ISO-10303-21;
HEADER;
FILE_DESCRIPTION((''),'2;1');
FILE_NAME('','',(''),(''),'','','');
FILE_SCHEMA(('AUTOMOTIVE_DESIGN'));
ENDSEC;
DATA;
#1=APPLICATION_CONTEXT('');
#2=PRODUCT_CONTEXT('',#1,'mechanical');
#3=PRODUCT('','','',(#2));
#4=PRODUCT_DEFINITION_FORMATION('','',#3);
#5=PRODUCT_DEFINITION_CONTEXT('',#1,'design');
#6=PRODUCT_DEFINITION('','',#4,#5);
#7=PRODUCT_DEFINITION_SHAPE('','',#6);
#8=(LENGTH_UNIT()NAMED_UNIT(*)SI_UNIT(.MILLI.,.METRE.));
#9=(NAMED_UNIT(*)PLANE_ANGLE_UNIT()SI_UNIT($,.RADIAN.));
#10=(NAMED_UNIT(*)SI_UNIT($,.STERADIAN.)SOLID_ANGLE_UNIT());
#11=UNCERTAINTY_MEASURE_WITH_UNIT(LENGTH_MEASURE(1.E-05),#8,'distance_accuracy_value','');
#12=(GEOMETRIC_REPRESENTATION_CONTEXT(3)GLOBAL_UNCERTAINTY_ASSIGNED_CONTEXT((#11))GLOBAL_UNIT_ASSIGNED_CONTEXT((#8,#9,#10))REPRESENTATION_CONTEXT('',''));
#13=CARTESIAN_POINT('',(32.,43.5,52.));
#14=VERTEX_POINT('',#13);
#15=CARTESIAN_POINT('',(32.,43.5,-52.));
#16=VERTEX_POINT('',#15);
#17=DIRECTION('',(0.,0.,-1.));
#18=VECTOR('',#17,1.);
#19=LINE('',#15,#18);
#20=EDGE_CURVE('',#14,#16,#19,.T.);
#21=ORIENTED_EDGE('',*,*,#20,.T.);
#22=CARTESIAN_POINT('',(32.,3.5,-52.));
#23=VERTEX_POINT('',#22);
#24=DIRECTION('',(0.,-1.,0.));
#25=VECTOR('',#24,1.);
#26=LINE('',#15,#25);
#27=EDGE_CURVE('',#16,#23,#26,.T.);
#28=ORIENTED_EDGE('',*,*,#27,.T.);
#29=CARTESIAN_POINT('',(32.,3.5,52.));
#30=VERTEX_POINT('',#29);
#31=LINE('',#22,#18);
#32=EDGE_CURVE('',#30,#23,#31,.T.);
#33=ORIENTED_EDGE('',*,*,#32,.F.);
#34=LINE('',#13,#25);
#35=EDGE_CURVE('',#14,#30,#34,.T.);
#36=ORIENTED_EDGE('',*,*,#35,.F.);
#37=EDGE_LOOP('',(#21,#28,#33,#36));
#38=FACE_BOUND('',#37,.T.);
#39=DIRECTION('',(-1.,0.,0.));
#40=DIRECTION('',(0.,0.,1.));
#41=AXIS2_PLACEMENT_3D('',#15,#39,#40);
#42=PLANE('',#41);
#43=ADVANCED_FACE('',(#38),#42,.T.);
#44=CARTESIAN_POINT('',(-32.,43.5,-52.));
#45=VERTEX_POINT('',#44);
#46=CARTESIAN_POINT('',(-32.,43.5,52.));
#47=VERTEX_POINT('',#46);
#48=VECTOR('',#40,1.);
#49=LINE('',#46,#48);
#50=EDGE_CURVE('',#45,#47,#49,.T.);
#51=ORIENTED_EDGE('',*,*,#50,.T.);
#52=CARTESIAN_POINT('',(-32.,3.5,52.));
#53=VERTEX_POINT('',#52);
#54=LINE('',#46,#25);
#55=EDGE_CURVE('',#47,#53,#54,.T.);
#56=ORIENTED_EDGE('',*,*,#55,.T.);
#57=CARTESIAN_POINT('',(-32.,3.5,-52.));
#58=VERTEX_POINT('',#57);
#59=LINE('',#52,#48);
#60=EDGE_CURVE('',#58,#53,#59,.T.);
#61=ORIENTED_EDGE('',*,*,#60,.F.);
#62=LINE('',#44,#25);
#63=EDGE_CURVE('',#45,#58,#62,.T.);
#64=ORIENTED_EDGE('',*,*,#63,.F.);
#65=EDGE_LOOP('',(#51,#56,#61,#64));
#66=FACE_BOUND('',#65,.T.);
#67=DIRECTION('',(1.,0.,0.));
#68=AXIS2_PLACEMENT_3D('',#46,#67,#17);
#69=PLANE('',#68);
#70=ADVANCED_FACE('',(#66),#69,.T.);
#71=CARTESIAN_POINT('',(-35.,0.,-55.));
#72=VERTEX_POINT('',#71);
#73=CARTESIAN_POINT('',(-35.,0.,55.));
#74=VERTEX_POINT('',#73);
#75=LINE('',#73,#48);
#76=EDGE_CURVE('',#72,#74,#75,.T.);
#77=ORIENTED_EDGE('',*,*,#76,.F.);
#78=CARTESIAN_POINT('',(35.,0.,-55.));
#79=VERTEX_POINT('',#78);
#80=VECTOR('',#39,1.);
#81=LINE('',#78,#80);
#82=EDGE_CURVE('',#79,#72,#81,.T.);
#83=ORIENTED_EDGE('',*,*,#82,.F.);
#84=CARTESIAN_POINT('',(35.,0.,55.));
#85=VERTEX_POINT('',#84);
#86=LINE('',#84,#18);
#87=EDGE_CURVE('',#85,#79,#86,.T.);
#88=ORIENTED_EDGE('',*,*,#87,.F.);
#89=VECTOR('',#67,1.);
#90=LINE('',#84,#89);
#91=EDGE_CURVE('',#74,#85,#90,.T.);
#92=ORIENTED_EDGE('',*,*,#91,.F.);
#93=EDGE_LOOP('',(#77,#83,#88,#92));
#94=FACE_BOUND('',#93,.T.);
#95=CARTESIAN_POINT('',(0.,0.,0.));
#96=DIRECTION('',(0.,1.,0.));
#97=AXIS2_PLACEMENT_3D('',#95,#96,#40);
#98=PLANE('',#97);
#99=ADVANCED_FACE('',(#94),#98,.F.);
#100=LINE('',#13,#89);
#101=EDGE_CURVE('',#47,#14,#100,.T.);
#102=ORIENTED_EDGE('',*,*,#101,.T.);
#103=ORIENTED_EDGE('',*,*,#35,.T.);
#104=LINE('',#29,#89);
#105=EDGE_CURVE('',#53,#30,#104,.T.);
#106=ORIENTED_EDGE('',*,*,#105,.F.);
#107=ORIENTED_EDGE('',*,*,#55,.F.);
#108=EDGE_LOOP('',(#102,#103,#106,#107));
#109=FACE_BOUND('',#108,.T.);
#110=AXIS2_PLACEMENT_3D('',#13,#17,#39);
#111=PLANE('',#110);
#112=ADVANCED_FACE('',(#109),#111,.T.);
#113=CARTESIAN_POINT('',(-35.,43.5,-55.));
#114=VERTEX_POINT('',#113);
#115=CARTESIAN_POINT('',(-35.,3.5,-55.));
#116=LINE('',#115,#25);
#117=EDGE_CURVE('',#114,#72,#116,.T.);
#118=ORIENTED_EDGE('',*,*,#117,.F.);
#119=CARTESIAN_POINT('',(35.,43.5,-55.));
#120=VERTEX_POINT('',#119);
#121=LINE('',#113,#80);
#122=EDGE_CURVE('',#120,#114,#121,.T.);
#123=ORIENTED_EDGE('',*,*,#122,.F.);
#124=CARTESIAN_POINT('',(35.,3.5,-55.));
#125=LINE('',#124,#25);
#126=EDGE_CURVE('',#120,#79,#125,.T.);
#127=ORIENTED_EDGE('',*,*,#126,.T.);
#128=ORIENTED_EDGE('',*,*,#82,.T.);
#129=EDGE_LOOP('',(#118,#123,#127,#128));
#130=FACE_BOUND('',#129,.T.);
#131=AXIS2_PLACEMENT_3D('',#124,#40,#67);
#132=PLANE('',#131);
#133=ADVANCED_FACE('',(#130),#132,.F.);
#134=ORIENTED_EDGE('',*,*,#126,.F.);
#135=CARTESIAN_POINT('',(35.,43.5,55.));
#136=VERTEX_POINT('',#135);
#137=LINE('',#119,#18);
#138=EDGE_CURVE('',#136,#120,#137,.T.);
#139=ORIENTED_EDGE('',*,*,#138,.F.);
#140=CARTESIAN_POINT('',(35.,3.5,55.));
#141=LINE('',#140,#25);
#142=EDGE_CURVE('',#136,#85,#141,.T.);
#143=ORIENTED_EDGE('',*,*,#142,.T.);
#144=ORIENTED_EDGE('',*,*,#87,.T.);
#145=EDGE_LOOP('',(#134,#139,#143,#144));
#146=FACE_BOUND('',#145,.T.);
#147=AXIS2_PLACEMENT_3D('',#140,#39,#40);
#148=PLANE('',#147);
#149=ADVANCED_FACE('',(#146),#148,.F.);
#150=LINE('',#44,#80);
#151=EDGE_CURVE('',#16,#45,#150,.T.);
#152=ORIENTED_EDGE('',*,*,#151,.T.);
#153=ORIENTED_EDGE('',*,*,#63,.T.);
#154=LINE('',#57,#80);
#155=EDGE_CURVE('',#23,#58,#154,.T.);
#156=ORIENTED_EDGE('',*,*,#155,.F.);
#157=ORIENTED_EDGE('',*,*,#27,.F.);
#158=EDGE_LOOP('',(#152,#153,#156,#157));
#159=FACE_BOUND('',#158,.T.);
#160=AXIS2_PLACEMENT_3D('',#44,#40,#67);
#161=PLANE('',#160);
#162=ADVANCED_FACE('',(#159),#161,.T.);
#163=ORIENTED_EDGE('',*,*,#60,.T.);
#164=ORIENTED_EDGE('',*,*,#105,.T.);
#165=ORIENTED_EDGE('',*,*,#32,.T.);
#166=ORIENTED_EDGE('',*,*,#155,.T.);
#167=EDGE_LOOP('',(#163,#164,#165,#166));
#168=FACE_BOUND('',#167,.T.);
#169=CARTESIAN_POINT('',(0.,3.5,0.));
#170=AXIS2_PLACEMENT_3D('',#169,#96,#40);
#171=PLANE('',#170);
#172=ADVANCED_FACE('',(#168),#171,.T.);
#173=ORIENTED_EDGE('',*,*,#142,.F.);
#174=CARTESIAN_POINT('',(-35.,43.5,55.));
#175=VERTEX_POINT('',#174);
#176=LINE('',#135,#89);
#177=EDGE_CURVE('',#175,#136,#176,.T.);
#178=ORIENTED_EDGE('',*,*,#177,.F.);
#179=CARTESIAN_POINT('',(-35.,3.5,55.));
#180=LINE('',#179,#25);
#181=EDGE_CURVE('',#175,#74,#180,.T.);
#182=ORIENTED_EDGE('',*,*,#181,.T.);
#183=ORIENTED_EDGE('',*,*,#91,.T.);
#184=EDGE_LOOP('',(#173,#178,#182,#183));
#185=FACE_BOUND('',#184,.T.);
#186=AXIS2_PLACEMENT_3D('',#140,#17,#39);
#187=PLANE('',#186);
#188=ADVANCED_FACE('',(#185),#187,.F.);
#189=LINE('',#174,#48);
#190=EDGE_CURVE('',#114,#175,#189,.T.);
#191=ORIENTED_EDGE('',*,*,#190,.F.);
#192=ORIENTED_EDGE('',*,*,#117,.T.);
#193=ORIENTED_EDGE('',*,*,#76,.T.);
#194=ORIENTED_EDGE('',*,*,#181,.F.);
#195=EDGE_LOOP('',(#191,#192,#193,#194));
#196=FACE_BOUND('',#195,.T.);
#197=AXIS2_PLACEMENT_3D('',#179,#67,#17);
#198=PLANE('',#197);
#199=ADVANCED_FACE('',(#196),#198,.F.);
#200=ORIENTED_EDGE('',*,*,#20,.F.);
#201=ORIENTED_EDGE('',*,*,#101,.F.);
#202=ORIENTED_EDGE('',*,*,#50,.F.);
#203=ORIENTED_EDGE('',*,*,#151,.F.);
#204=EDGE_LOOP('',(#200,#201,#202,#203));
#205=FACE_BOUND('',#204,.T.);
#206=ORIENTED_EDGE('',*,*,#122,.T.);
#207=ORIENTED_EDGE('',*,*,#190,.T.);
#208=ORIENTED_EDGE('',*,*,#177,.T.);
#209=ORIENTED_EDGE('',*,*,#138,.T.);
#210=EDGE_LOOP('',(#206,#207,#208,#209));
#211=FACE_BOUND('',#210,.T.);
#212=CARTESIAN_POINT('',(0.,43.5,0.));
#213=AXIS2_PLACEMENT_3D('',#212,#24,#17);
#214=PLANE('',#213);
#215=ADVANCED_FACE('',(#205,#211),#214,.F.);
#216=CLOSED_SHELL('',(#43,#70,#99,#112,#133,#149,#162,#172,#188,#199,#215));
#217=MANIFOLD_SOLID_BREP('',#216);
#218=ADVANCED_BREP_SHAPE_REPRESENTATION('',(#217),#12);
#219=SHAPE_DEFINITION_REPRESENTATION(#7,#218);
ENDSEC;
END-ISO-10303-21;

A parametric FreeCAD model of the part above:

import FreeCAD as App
import Part
import Sketcher
Q = App.Units.Quantity


def add_polygon(sketch, points):
    """Adds a closed chain of lines whose ends are joined by coincident constraints."""
    first, n = sketch.GeometryCount, len(points)
    for a, b in zip(points, points[1:] + points[:1]):
        sketch.addGeometry(Part.LineSegment(App.Vector(*a, 0), App.Vector(*b, 0)), False)
    for i in range(n):
        sketch.addConstraint(Sketcher.Constraint("Coincident", first + i, 2, first + (i + 1) % n, 1))

doc = App.newDocument("Part")
body = doc.addObject("PartDesign::Body", "Body")

# Sketch on XZ plane
sketch1 = doc.addObject("Sketcher::SketchObject", "Sketch")
body.addObject(sketch1)
sketch1.AttachmentSupport = (doc.XZ_Plane, [""])
sketch1.MapMode = "FlatFace"
add_polygon(sketch1, [(-35, -55), (-35, 55), (35, 55), (35, -55)])  # lines 0-3
sketch1.addConstraint(Sketcher.Constraint("Vertical", 0))
sketch1.addConstraint(Sketcher.Constraint("Horizontal", 1))
sketch1.addConstraint(Sketcher.Constraint("Vertical", 2))
sketch1.addConstraint(Sketcher.Constraint("Horizontal", 3))
sketch1.addConstraint(Sketcher.Constraint("Symmetric", 0, 2, 2, 2, -1, 1))
sketch1.addConstraint(Sketcher.Constraint("DistanceX", 1, 1, 1, 2, Q("70 mm")))
sketch1.addConstraint(Sketcher.Constraint("DistanceY", 0, 1, 0, 2, Q("110 mm")))
pad1 = doc.addObject("PartDesign::Pad", "Pad")
body.addObject(pad1)
pad1.Profile = sketch1
pad1.Length = 3.5
pad1.Reversed = True

# Sketch on XZ plane
sketch2 = doc.addObject("Sketcher::SketchObject", "Sketch001")
body.addObject(sketch2)
sketch2.AttachmentSupport = (doc.XZ_Plane, [""])
sketch2.MapMode = "FlatFace"
sketch2.AttachmentOffset = App.Placement(App.Vector(0, 0, -3.5), App.Rotation())
add_polygon(sketch2, [(-35, -55), (-35, 55), (35, 55), (35, -55)])  # lines 0-3
add_polygon(sketch2, [(32, 52), (-32, 52), (-32, -52), (32, -52)])  # lines 4-7
sketch2.addConstraint(Sketcher.Constraint("Vertical", 0))
sketch2.addConstraint(Sketcher.Constraint("Horizontal", 1))
sketch2.addConstraint(Sketcher.Constraint("Vertical", 2))
sketch2.addConstraint(Sketcher.Constraint("Horizontal", 3))
sketch2.addConstraint(Sketcher.Constraint("Horizontal", 4))
sketch2.addConstraint(Sketcher.Constraint("Vertical", 5))
sketch2.addConstraint(Sketcher.Constraint("Horizontal", 6))
sketch2.addConstraint(Sketcher.Constraint("Vertical", 7))
sketch2.addConstraint(Sketcher.Constraint("Symmetric", 0, 2, 2, 2, -1, 1))
sketch2.addConstraint(Sketcher.Constraint("Symmetric", 4, 2, 6, 2, -1, 1))
sketch2.addConstraint(Sketcher.Constraint("DistanceX", 1, 1, 1, 2, Q("70 mm")))
sketch2.addConstraint(Sketcher.Constraint("DistanceX", 4, 2, 4, 1, Q("64 mm")))
sketch2.addConstraint(Sketcher.Constraint("DistanceY", 0, 1, 0, 2, Q("110 mm")))
sketch2.addConstraint(Sketcher.Constraint("DistanceY", 5, 2, 5, 1, Q("104 mm")))
pad2 = doc.addObject("PartDesign::Pad", "Pad001")
body.addObject(pad2)
pad2.Profile = sketch2
pad2.Length = 40
pad2.Reversed = True

doc.recompute()
